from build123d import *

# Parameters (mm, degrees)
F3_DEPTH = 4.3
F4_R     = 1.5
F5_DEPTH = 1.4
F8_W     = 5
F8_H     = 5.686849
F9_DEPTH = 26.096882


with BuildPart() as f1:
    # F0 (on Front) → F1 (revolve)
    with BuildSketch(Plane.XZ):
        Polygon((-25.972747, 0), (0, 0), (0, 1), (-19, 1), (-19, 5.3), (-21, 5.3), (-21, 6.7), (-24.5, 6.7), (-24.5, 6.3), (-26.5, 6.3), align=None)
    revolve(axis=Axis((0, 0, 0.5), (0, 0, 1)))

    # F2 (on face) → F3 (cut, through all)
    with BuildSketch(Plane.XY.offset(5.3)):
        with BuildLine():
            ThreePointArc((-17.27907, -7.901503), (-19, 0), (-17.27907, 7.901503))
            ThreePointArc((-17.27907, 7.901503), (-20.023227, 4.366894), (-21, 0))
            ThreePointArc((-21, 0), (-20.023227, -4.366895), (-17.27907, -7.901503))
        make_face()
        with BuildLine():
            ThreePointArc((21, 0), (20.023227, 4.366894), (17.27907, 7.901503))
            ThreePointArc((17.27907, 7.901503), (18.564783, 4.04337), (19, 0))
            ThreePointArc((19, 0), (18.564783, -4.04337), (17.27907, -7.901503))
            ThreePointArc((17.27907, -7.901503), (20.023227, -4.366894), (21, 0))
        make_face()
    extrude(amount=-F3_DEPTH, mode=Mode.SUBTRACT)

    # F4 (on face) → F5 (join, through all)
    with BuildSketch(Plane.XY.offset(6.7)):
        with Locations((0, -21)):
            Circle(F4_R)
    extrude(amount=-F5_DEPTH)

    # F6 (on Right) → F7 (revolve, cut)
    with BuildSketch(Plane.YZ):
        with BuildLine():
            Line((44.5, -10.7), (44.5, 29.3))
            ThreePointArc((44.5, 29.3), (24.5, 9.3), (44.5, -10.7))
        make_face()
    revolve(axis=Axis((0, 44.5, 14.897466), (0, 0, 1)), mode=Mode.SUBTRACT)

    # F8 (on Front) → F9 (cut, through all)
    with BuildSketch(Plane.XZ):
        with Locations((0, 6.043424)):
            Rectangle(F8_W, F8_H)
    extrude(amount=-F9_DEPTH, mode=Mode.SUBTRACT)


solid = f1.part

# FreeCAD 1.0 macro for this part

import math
import FreeCAD as App
import Part
import Sketcher

V = App.Vector
Q = App.Units.Quantity


def add_polygon(sketch, points):
    """Adds a closed chain of lines whose ends are joined by coincident constraints."""
    first, n = sketch.GeometryCount, len(points)
    for a, b in zip(points, points[1:] + points[:1]):
        sketch.addGeometry(Part.LineSegment(App.Vector(*a, 0), App.Vector(*b, 0)), False)
    for i in range(n):
        sketch.addConstraint(Sketcher.Constraint("Coincident", first + i, 2, first + (i + 1) % n, 1))

doc = App.newDocument("Part")
body = doc.addObject("PartDesign::Body", "Body")

# Sketch on XZ plane
sketch1 = body.newObject("Sketcher::SketchObject", "Sketch")
sketch1.AttachmentSupport = (doc.getObject("XZ_Plane"), [""])
sketch1.MapMode = "FlatFace"
add_polygon(sketch1, [(-25.97, 0), (0, 0), (0, 1), (-19, 1), (-19, 5.3), (-21, 5.3), (-21, 6.7), (-24.5, 6.7), (-24.5, 6.3), (-26.5, 6.3)])  # lines 0-9
sketch1.addConstraint(Sketcher.Constraint("Horizontal", 0))
sketch1.addConstraint(Sketcher.Constraint("Vertical", 1))
sketch1.addConstraint(Sketcher.Constraint("Horizontal", 2))
sketch1.addConstraint(Sketcher.Constraint("Vertical", 3))
sketch1.addConstraint(Sketcher.Constraint("Horizontal", 4))
sketch1.addConstraint(Sketcher.Constraint("Vertical", 5))
sketch1.addConstraint(Sketcher.Constraint("Horizontal", 6))
sketch1.addConstraint(Sketcher.Constraint("Vertical", 7))
sketch1.addConstraint(Sketcher.Constraint("Horizontal", 8))
sketch1.addConstraint(Sketcher.Constraint("Coincident", 0, 2, -1, 1))
sketch1.addConstraint(Sketcher.Constraint("Equal", 4, 8))
sketch1.addConstraint(Sketcher.Constraint("DistanceX", 2, 2, 2, 1, Q("19 mm")))
sketch1.addConstraint(Sketcher.Constraint("DistanceX", 4, 2, 4, 1, Q("2 mm")))
sketch1.addConstraint(Sketcher.Constraint("DistanceY", 1, 1, 1, 2, Q("1 mm")))
sketch1.addConstraint(Sketcher.Constraint("DistanceX", 6, 2, 6, 1, Q("3.5 mm")))
sketch1.addConstraint(Sketcher.Constraint("DistanceY", 3, 1, 3, 2, Q("4.3 mm")))
sketch1.addConstraint(Sketcher.Constraint("DistanceY", 5, 1, 5, 2, Q("1.4 mm")))
sketch1.addConstraint(Sketcher.Constraint("DistanceY", 7, 2, 7, 1, Q("0.4 mm")))
sketch1.addConstraint(Sketcher.Constraint("DistanceX", 0, 1, 0, 2, Q("25.972747 mm")))
revolution = body.newObject("PartDesign::Revolution", "Revolution")
revolution.Profile = sketch1
revolution.ReferenceAxis = (sketch1, ["V_Axis"])
revolution.Angle = 360

# Sketch on XY plane
sketch2 = body.newObject("Sketcher::SketchObject", "Sketch001")
sketch2.AttachmentSupport = (doc.getObject("XY_Plane"), [""])
sketch2.MapMode = "FlatFace"
sketch2.AttachmentOffset = App.Placement(V(0, 0, 5.3), App.Rotation())
sketch2.addGeometry(Part.ArcOfCircle(Part.Circle(V(0, 0, 0), V(0, 0, 1), 19), math.radians(155), math.radians(205)), False)
sketch2.addGeometry(Part.ArcOfCircle(Part.Circle(V(-11, 0, 0), V(0, 0, 1), 10), math.radians(130), math.radians(180)), False)
sketch2.addGeometry(Part.ArcOfCircle(Part.Circle(V(-11, 0, 0), V(0, 0, 1), 10), math.radians(180), math.radians(230)), False)
sketch2.addGeometry(Part.ArcOfCircle(Part.Circle(V(11, 0, 0), V(0, 0, 1), 10), math.radians(0), math.radians(50)), False)
sketch2.addGeometry(Part.ArcOfCircle(Part.Circle(V(0, 0, 0), V(0, 0, 1), 19), math.radians(0), math.radians(25)), False)
sketch2.addGeometry(Part.ArcOfCircle(Part.Circle(V(0, 0, 0), V(0, 0, 1), 19), math.radians(-25), math.radians(0)), False)
sketch2.addGeometry(Part.ArcOfCircle(Part.Circle(V(11, 0, 0), V(0, 0, 1), 10), math.radians(-50), math.radians(0)), False)
sketch2.addConstraint(Sketcher.Constraint("Coincident", 0, 1, 1, 1))
sketch2.addConstraint(Sketcher.Constraint("Tangent", 1, 2, 2, 1))
sketch2.addConstraint(Sketcher.Constraint("Coincident", 2, 2, 0, 2))
sketch2.addConstraint(Sketcher.Constraint("Coincident", 3, 2, 4, 2))
sketch2.addConstraint(Sketcher.Constraint("Tangent", 4, 1, 5, 2))
sketch2.addConstraint(Sketcher.Constraint("Coincident", 5, 1, 6, 1))
sketch2.addConstraint(Sketcher.Constraint("Tangent", 6, 2, 3, 1))
sketch2.addConstraint(Sketcher.Constraint("Coincident", 0, 3, -1, 1))
sketch2.addConstraint(Sketcher.Constraint("Coincident", 4, 3, -1, 1))
sketch2.addConstraint(Sketcher.Constraint("Equal", 1, 3))
sketch2.addConstraint(Sketcher.Constraint("Equal", 4, 5))
sketch2.addConstraint(Sketcher.Constraint("Equal", 3, 6))
sketch2.addConstraint(Sketcher.Constraint("Symmetric", 1, 3, 3, 3, -1, 1))
sketch2.addConstraint(Sketcher.Constraint("Symmetric", 2, 2, 3, 2, -1, 1))
sketch2.addConstraint(Sketcher.Constraint("PointOnObject", 1, 3, -1))
sketch2.addConstraint(Sketcher.Constraint("PointOnObject", 1, 2, -1))
sketch2.addConstraint(Sketcher.Constraint("PointOnObject", 4, 1, -1))
sketch2.addConstraint(Sketcher.Constraint("PointOnObject", 6, 2, -1))
sketch2.addConstraint(Sketcher.Constraint("Radius", 1, Q("10.25 mm")))
sketch2.addConstraint(Sketcher.Constraint("DistanceX", 1, 2, -1, 1, Q("21 mm")))
sketch2.addConstraint(Sketcher.Constraint("DistanceX", -1, 1, 4, 1, Q("19 mm")))
pocket1 = body.newObject("PartDesign::Pocket", "Pocket")
pocket1.Profile = sketch2
pocket1.Length = 4.3

# Sketch on XY plane
sketch3 = body.newObject("Sketcher::SketchObject", "Sketch002")
sketch3.AttachmentSupport = (doc.getObject("XY_Plane"), [""])
sketch3.MapMode = "FlatFace"
sketch3.AttachmentOffset = App.Placement(V(0, 0, 6.7), App.Rotation())
sketch3.addGeometry(Part.Circle(V(0, -21, 0), V(0, 0, 1), 1.5), False)
sketch3.addConstraint(Sketcher.Constraint("PointOnObject", 0, 3, -2))
sketch3.addConstraint(Sketcher.Constraint("Diameter", 0, Q("3 mm")))
sketch3.addConstraint(Sketcher.Constraint("DistanceY", 0, 3, -1, 1, Q("21 mm")))
pad1 = body.newObject("PartDesign::Pad", "Pad")
pad1.Profile = sketch3
pad1.Type = "UpToLast"
pad1.Reversed = True

# Sketch on YZ plane
sketch4 = body.newObject("Sketcher::SketchObject", "Sketch003")
sketch4.AttachmentSupport = (doc.getObject("YZ_Plane"), [""])
sketch4.MapMode = "FlatFace"
sketch4.addGeometry(Part.LineSegment(V(44, -11, 0), V(44, 29, 0)), False)
sketch4.addGeometry(Part.ArcOfCircle(Part.Circle(V(44, 9, 0), V(0, 0, 1), 20), math.radians(90), math.radians(270)), False)
sketch4.addGeometry(Part.LineSegment(V(44, -11, 0), V(44, 29, 0)), True)  # axis
sketch4.addConstraint(Sketcher.Constraint("Coincident", 0, 1, 1, 2))
sketch4.addConstraint(Sketcher.Constraint("Coincident", 1, 1, 0, 2))
sketch4.addConstraint(Sketcher.Constraint("Vertical", 0))
sketch4.addConstraint(Sketcher.Constraint("Vertical", 2))
sketch4.addConstraint(Sketcher.Constraint("Coincident", 2, 1, 0, 1))
sketch4.addConstraint(Sketcher.Constraint("Vertical", 1, 3, 0, 1))
sketch4.addConstraint(Sketcher.Constraint("Equal", 0, 2))
sketch4.addConstraint(Sketcher.Constraint("Radius", 1, Q("20 mm")))
sketch4.addConstraint(Sketcher.Constraint("DistanceX", -1, 1, 1, 3, Q("44.5 mm")))
sketch4.addConstraint(Sketcher.Constraint("DistanceY", -1, 1, 1, 3, Q("9.3 mm")))
groove = body.newObject("PartDesign::Groove", "Groove")
groove.Profile = sketch4
groove.ReferenceAxis = (sketch4, ["Axis0"])
groove.Angle = 360

# Sketch on XZ plane
sketch5 = body.newObject("Sketcher::SketchObject", "Sketch004")
sketch5.AttachmentSupport = (doc.getObject("XZ_Plane"), [""])
sketch5.MapMode = "FlatFace"
add_polygon(sketch5, [(-2, 9), (-2, 3), (2, 3), (2, 9)])  # lines 0-3
sketch5.addConstraint(Sketcher.Constraint("Vertical", 0))
sketch5.addConstraint(Sketcher.Constraint("Horizontal", 1))
sketch5.addConstraint(Sketcher.Constraint("Vertical", 2))
sketch5.addConstraint(Sketcher.Constraint("Horizontal", 3))
sketch5.addConstraint(Sketcher.Constraint("DistanceX", 1, 1, 1, 2, Q("5 mm")))
sketch5.addConstraint(Sketcher.Constraint("DistanceX", 0, 2, -1, 1, Q("2.5 mm")))
sketch5.addConstraint(Sketcher.Constraint("DistanceY", -1, 1, 0, 2, Q("3.2 mm")))
sketch5.addConstraint(Sketcher.Constraint("DistanceY", 0, 2, 0, 1, Q("5.686849 mm")))
pocket2 = body.newObject("PartDesign::Pocket", "Pocket001")
pocket2.Profile = sketch5
pocket2.Type = "ThroughAll"

doc.recompute()
